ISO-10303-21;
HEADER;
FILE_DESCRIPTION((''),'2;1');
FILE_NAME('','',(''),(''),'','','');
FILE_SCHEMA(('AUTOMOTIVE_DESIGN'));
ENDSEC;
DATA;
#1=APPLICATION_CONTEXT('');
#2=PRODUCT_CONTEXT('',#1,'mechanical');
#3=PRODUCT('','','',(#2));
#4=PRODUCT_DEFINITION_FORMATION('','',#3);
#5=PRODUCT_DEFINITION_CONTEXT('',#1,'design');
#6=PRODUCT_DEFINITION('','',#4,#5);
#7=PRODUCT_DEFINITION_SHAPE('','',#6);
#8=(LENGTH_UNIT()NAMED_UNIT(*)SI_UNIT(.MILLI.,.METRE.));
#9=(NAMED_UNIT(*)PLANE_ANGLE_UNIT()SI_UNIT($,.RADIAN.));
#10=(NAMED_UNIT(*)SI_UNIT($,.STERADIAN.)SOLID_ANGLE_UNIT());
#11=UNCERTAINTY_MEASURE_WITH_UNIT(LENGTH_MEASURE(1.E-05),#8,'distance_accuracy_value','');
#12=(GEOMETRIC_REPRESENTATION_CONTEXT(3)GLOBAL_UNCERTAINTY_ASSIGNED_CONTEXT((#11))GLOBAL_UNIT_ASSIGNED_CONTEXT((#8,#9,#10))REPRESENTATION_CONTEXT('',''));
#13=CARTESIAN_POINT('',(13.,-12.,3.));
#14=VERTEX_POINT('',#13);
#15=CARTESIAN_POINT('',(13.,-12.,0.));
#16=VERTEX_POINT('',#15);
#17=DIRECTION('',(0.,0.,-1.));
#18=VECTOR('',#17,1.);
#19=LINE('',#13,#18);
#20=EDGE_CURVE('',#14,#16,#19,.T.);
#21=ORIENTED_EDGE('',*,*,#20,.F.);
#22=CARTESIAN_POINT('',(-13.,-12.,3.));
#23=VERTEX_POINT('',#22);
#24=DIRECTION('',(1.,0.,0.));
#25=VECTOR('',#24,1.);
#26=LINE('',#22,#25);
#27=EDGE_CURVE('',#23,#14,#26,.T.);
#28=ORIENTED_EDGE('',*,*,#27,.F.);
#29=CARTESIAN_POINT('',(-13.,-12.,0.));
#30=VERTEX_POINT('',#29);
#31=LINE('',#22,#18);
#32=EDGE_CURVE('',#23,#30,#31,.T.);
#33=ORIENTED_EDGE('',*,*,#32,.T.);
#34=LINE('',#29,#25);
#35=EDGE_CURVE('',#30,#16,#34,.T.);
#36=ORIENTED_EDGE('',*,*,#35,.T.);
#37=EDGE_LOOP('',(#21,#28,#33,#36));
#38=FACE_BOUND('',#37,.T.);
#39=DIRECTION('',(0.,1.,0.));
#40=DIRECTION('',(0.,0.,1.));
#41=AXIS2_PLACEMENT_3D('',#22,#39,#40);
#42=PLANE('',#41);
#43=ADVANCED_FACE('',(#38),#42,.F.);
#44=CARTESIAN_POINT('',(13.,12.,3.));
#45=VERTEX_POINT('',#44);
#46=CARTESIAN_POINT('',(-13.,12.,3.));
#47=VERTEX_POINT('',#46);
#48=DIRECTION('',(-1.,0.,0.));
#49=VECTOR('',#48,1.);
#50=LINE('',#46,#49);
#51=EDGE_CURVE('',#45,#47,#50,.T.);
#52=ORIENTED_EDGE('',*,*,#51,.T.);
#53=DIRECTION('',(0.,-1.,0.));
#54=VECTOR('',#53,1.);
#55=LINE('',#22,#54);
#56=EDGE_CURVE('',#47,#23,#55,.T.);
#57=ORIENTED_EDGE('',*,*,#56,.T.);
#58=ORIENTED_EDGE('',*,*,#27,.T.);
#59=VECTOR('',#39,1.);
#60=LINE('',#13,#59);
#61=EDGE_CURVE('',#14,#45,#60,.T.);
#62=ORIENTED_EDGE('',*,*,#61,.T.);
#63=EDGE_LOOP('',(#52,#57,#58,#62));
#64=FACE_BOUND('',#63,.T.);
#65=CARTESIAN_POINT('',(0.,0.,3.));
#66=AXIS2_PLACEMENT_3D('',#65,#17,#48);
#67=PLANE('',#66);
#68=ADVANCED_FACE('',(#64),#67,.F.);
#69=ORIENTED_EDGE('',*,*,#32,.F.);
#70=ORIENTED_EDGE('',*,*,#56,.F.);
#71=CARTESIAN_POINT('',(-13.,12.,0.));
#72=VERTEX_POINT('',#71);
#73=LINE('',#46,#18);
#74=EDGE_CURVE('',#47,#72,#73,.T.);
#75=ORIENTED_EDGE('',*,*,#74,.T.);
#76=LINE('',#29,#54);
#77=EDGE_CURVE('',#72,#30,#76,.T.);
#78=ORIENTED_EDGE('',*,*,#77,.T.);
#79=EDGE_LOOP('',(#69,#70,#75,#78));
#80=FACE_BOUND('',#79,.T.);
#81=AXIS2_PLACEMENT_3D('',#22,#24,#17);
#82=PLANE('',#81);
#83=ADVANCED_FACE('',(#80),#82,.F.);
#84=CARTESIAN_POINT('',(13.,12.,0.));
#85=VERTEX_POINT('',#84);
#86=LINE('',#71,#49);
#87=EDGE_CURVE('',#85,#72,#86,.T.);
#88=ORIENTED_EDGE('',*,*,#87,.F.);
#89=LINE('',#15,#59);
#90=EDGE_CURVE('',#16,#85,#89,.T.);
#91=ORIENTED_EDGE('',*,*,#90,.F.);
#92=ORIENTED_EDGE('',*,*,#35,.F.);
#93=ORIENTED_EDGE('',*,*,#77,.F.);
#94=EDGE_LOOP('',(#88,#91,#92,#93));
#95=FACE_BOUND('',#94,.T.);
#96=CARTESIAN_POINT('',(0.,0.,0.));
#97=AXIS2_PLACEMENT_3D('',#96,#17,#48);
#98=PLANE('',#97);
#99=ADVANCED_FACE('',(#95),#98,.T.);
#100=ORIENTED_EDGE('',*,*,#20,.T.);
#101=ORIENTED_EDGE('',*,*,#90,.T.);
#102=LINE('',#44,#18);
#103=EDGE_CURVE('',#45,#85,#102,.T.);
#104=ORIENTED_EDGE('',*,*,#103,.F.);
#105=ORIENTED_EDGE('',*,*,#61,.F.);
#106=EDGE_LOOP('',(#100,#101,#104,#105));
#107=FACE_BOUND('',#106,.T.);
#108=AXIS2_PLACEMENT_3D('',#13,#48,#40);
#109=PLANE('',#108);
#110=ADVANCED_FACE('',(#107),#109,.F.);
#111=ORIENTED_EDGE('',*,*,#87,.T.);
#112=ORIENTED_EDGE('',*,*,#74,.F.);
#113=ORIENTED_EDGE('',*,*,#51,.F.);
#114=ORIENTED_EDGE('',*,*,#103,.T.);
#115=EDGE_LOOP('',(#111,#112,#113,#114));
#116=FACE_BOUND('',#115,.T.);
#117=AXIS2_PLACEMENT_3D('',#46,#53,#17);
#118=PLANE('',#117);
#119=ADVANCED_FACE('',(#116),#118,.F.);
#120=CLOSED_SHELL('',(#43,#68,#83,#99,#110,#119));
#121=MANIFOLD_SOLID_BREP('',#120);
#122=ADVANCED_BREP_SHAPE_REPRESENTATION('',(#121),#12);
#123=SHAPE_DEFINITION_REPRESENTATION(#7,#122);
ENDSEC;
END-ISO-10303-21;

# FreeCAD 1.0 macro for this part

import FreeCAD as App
import Part
import Sketcher


def add_polygon(sketch, points):
    """Adds a closed chain of lines whose ends are joined by coincident constraints."""
    first, n = sketch.GeometryCount, len(points)
    for a, b in zip(points, points[1:] + points[:1]):
        sketch.addGeometry(Part.LineSegment(App.Vector(*a, 0), App.Vector(*b, 0)), False)
    for i in range(n):
        sketch.addConstraint(Sketcher.Constraint("Coincident", first + i, 2, first + (i + 1) % n, 1))

doc = App.newDocument("Part")
params = doc.addObject("Spreadsheet::Sheet", "Params")
for row, (alias, value) in enumerate([
    ("sketch1_width", "26 mm"),
    ("sketch1_height", "24 mm"),
    ("pad1_length", "3 mm"),
], start=1):
    params.set(f"A{row}", alias)
    params.set(f"B{row}", "=" + value)
    params.setAlias(f"B{row}", alias)

body = doc.addObject("PartDesign::Body", "Body")

sketch1 = body.newObject("Sketcher::SketchObject", "Sketch")
sketch1.AttachmentSupport = (doc.getObject("XY_Plane"), [""])
sketch1.MapMode = "FlatFace"
add_polygon(sketch1, [(-13, 12), (-13, -12), (13, -12), (13, 12)])
sketch1.addConstraint(Sketcher.Constraint("Vertical", 0))
sketch1.addConstraint(Sketcher.Constraint("Horizontal", 1))
sketch1.addConstraint(Sketcher.Constraint("Vertical", 2))
sketch1.addConstraint(Sketcher.Constraint("Horizontal", 3))
sketch1.addConstraint(Sketcher.Constraint("Symmetric", 0, 2, 2, 2, -1, 1))
sketch1.addConstraint(Sketcher.Constraint("DistanceX", 1, 1, 1, 2, 26.0))
sketch1.addConstraint(Sketcher.Constraint("DistanceY", 0, 2, 0, 1, 24.0))
sketch1.setExpression("Constraints[9]", "Params.sketch1_width")
sketch1.setExpression("Constraints[10]", "Params.sketch1_height")
pad1 = body.newObject("PartDesign::Pad", "Pad")
pad1.Profile = sketch1
pad1.setExpression("Length", "Params.pad1_length")

doc.recompute()
